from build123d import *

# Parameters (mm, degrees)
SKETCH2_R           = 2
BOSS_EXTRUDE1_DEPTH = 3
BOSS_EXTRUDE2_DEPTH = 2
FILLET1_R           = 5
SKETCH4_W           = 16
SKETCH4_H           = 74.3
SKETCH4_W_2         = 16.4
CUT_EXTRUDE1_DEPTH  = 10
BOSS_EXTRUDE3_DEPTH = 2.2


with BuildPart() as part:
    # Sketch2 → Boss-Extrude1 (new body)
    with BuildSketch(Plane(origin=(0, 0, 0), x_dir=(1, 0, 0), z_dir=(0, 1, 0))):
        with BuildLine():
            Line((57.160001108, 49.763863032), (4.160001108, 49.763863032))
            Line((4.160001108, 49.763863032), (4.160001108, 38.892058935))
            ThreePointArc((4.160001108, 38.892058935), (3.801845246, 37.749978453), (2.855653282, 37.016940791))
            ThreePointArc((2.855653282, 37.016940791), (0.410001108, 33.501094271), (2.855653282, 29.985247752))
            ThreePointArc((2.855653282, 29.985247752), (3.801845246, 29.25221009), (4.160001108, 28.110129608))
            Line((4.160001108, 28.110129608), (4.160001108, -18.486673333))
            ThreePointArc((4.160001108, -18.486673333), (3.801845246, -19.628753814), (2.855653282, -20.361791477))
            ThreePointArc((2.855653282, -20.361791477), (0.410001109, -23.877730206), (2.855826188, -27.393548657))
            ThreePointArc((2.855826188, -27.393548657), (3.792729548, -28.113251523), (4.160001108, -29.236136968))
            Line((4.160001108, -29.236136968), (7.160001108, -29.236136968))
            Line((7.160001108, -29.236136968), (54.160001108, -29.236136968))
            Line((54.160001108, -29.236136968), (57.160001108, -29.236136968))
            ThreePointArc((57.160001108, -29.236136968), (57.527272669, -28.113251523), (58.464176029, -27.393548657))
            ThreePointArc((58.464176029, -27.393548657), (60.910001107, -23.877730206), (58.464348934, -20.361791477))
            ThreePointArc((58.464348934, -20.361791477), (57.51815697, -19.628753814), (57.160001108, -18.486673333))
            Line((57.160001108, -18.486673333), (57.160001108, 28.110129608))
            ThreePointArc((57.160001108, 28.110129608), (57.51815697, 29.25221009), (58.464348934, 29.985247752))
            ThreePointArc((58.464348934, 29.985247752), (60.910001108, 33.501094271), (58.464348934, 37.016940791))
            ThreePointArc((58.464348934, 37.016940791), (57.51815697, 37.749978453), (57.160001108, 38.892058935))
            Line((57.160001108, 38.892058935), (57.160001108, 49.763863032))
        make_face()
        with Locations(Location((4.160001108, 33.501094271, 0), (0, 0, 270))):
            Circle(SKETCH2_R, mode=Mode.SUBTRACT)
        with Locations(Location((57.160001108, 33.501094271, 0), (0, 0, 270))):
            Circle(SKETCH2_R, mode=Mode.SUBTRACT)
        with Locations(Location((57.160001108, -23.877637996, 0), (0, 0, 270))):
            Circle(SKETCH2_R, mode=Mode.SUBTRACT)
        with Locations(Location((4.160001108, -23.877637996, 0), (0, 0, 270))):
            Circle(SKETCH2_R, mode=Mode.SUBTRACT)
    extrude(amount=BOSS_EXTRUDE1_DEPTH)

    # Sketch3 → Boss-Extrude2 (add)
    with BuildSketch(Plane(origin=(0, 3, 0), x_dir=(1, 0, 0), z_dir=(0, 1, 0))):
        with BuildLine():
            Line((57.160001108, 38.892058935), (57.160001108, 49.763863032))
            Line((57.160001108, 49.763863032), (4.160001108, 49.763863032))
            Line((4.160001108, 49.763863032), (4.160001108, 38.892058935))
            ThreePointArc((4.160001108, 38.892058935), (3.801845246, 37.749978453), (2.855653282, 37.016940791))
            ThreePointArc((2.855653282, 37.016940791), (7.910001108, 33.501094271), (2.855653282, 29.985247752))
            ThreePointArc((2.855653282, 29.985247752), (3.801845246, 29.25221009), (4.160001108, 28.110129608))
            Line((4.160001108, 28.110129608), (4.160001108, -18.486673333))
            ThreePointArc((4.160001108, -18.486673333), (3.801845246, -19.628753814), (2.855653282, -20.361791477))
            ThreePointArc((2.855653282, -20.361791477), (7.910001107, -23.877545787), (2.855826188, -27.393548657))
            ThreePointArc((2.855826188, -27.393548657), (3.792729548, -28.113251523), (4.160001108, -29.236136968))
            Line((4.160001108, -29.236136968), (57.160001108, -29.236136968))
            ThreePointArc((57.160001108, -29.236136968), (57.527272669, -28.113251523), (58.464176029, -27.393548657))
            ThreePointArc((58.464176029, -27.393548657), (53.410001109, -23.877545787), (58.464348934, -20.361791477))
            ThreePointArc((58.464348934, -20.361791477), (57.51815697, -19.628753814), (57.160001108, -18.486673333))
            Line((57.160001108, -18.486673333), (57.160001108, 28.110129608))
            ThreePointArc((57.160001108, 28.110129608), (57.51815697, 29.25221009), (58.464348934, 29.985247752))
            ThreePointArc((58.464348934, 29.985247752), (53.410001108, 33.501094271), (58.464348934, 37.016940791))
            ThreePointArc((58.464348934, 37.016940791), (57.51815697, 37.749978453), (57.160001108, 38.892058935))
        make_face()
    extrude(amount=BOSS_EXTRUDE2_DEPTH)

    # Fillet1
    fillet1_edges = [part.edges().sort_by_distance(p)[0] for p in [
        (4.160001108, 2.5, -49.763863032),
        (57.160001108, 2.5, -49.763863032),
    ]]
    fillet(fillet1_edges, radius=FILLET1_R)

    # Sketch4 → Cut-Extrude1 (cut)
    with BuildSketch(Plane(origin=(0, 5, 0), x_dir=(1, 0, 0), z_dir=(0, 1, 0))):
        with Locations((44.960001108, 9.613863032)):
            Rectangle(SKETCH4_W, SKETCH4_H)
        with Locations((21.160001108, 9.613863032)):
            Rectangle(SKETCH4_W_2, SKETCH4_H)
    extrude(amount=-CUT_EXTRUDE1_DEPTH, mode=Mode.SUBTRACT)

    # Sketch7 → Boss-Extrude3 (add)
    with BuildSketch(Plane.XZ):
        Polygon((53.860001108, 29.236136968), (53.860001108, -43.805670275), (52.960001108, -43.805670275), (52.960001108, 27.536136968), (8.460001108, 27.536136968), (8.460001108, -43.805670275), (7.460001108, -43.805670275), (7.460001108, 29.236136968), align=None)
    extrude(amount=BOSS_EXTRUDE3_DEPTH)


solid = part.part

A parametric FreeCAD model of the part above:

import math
import FreeCAD as App
import Part
import Sketcher


def edges_at(feature, points):
    """Names of the edges that pass closest to the given points."""
    edges = feature.Shape.Edges
    near = lambda p: min(range(len(edges)), key=lambda i: edges[i].distToShape(Part.Vertex(*p))[0])
    return sorted({f"Edge{near(p) + 1}" for p in points})

doc = App.newDocument("Part")
body = doc.addObject("PartDesign::Body", "Body")

# Sketch on XZ plane
sketch1 = doc.addObject("Sketcher::SketchObject", "Sketch")
body.addObject(sketch1)
sketch1.AttachmentSupport = (doc.XZ_Plane, [""])
sketch1.MapMode = "FlatFace"
sketch1.addGeometry([
    Part.LineSegment(App.Vector(57.2, -49.8, 0), App.Vector(4.2, -49.8, 0)),  # 0
    Part.LineSegment(App.Vector(4.2, -49.8, 0), App.Vector(4.2, -38.9, 0)),  # 1
    Part.ArcOfCircle(Part.Circle(App.Vector(2.2, -38.9, 0), App.Vector(0, 0, 1), 2), math.radians(0), math.radians(70)),  # 2
    Part.ArcOfCircle(Part.Circle(App.Vector(4.2, -33.5, 0), App.Vector(0, 0, 1), 3.8), math.radians(110), math.radians(250)),  # 3
    Part.ArcOfCircle(Part.Circle(App.Vector(2.2, -28.1, 0), App.Vector(0, 0, 1), 2), math.radians(-70), math.radians(0)),  # 4
    Part.LineSegment(App.Vector(4.2, -28.1, 0), App.Vector(4.2, 18.5, 0)),  # 5
    Part.ArcOfCircle(Part.Circle(App.Vector(2.2, 18.5, 0), App.Vector(0, 0, 1), 2), math.radians(0), math.radians(70)),  # 6
    Part.ArcOfCircle(Part.Circle(App.Vector(4.2, 23.9, 0), App.Vector(0, 0, 1), 3.7), math.radians(110), math.radians(250)),  # 7
    Part.ArcOfCircle(Part.Circle(App.Vector(2.2, 29.3, 0), App.Vector(0, 0, 1), 2), math.radians(-70), math.radians(-1)),  # 8
    Part.LineSegment(App.Vector(4.2, 29.2, 0), App.Vector(57.2, 29.2, 0)),  # 9
    Part.ArcOfCircle(Part.Circle(App.Vector(59.2, 29.3, 0), App.Vector(0, 0, 1), 2), math.radians(-179), math.radians(-110)),  # 10
    Part.ArcOfCircle(Part.Circle(App.Vector(57.2, 23.9, 0), App.Vector(0, 0, 1), 3.8), math.radians(-70), math.radians(70)),  # 11
    Part.ArcOfCircle(Part.Circle(App.Vector(59.2, 18.5, 0), App.Vector(0, 0, 1), 2), math.radians(110), math.radians(180)),  # 12
    Part.LineSegment(App.Vector(57.2, 18.5, 0), App.Vector(57.2, -28.1, 0)),  # 13
    Part.ArcOfCircle(Part.Circle(App.Vector(59.2, -28.1, 0), App.Vector(0, 0, 1), 2), math.radians(180), math.radians(250)),  # 14
    Part.ArcOfCircle(Part.Circle(App.Vector(57.2, -33.5, 0), App.Vector(0, 0, 1), 3.8), math.radians(-70), math.radians(70)),  # 15
    Part.ArcOfCircle(Part.Circle(App.Vector(59.2, -38.9, 0), App.Vector(0, 0, 1), 2), math.radians(110), math.radians(180)),  # 16
    Part.LineSegment(App.Vector(57.2, -38.9, 0), App.Vector(57.2, -49.8, 0)),  # 17
    Part.Circle(App.Vector(4.2, 23.9, 0), App.Vector(0, 0, 1), 2),  # 18
    Part.Circle(App.Vector(57.2, 23.9, 0), App.Vector(0, 0, 1), 2),  # 19
    Part.Circle(App.Vector(4.2, -33.5, 0), App.Vector(0, 0, 1), 2),  # 20
    Part.Circle(App.Vector(57.2, -33.5, 0), App.Vector(0, 0, 1), 2),  # 21
], False)
sketch1.addConstraint([
    Sketcher.Constraint("Coincident", 0, 2, 1, 1),
    Sketcher.Constraint("Tangent", 1, 2, 2, 1),
    Sketcher.Constraint("Tangent", 2, 2, 3, 2),
    Sketcher.Constraint("Tangent", 3, 1, 4, 1),
    Sketcher.Constraint("Tangent", 4, 2, 5, 1),
    Sketcher.Constraint("Tangent", 5, 2, 6, 1),
    Sketcher.Constraint("Tangent", 6, 2, 7, 2),
    Sketcher.Constraint("Tangent", 7, 1, 8, 1),
    Sketcher.Constraint("Coincident", 8, 2, 9, 1),
    Sketcher.Constraint("Coincident", 9, 2, 10, 1),
    Sketcher.Constraint("Tangent", 10, 2, 11, 2),
    Sketcher.Constraint("Tangent", 11, 1, 12, 1),
    Sketcher.Constraint("Tangent", 12, 2, 13, 1),
    Sketcher.Constraint("Tangent", 13, 2, 14, 1),
    Sketcher.Constraint("Tangent", 14, 2, 15, 2),
    Sketcher.Constraint("Tangent", 15, 1, 16, 1),
    Sketcher.Constraint("Tangent", 16, 2, 17, 1),
    Sketcher.Constraint("Coincident", 17, 2, 0, 1),
    Sketcher.Constraint("Horizontal", 0),
    Sketcher.Constraint("Vertical", 1),
    Sketcher.Constraint("Vertical", 5),
    Sketcher.Constraint("Horizontal", 9),
    Sketcher.Constraint("Vertical", 13),
    Sketcher.Constraint("Vertical", 17),
    Sketcher.Constraint("Coincident", 18, 3, 7, 3),
    Sketcher.Constraint("Coincident", 19, 3, 11, 3),
    Sketcher.Constraint("Coincident", 20, 3, 3, 3),
    Sketcher.Constraint("Coincident", 21, 3, 15, 3),
    Sketcher.Constraint("Equal", 2, 4),
    Sketcher.Constraint("Equal", 4, 6),
    Sketcher.Constraint("Equal", 3, 7),
    Sketcher.Constraint("Equal", 6, 8),
    Sketcher.Constraint("Equal", 8, 10),
    Sketcher.Constraint("Equal", 7, 11),
    Sketcher.Constraint("Equal", 10, 12),
    Sketcher.Constraint("Equal", 12, 14),
    Sketcher.Constraint("Equal", 11, 15),
    Sketcher.Constraint("Equal", 14, 16),
    Sketcher.Constraint("Equal", 16, 18),
    Sketcher.Constraint("Equal", 18, 19),
    Sketcher.Constraint("Equal", 19, 20),
    Sketcher.Constraint("Equal", 20, 21),
    Sketcher.Constraint("Horizontal", 8, 3, 10, 3),
    Sketcher.Constraint("Horizontal", 7, 3, 11, 3),
    Sketcher.Constraint("Horizontal", 6, 3, 12, 3),
    Sketcher.Constraint("Horizontal", 4, 3, 14, 3),
    Sketcher.Constraint("Horizontal", 3, 3, 15, 3),
    Sketcher.Constraint("Horizontal", 2, 3, 16, 3),
    Sketcher.Constraint("Vertical", 2, 3, 4, 3),
    Sketcher.Constraint("Vertical", 3, 3, 7, 3),
    Sketcher.Constraint("Vertical", 20, 3, 0, 2),
    Sketcher.Constraint("Vertical", 5, 2, 8, 2),
    Sketcher.Constraint("Diameter", 18, 4.0),
    Sketcher.Constraint("DistanceX", 0, 2, 0, 1, 53.0),
    Sketcher.Constraint("Radius", 3, 3.75),
    Sketcher.Constraint("DistanceX", -1, 1, 2, 3, 2.160001),
    Sketcher.Constraint("DistanceY", -1, 1, 8, 3, 29.268701),
    Sketcher.Constraint("DistanceY", 7, 3, 8, 2, 5.358499),
    Sketcher.Constraint("DistanceY", 1, 1, 1, 2, 10.871804),
    Sketcher.Constraint("DistanceY", 5, 1, 5, 2, 46.596803),
])
pad1 = doc.addObject("PartDesign::Pad", "Pad")
body.addObject(pad1)
pad1.Profile = sketch1
pad1.Length = 3
pad1.Reversed = True

# Sketch on XZ plane
sketch2 = doc.addObject("Sketcher::SketchObject", "Sketch001")
body.addObject(sketch2)
sketch2.AttachmentSupport = (doc.XZ_Plane, [""])
sketch2.MapMode = "FlatFace"
sketch2.AttachmentOffset = App.Placement(App.Vector(0, 0, -3), App.Rotation())
sketch2.addGeometry([
    Part.LineSegment(App.Vector(57.2, -38.9, 0), App.Vector(57.2, -49.8, 0)),  # 0
    Part.LineSegment(App.Vector(57.2, -49.8, 0), App.Vector(4.2, -49.8, 0)),  # 1
    Part.LineSegment(App.Vector(4.2, -49.8, 0), App.Vector(4.2, -38.9, 0)),  # 2
    Part.ArcOfCircle(Part.Circle(App.Vector(2.2, -38.9, 0), App.Vector(0, 0, 1), 2), math.radians(0), math.radians(70)),  # 3
    Part.ArcOfCircle(Part.Circle(App.Vector(4.2, -33.5, 0), App.Vector(0, 0, 1), 3.8), math.radians(-110), math.radians(110)),  # 4
    Part.ArcOfCircle(Part.Circle(App.Vector(2.2, -28.1, 0), App.Vector(0, 0, 1), 2), math.radians(-70), math.radians(0)),  # 5
    Part.LineSegment(App.Vector(4.2, -28.1, 0), App.Vector(4.2, 18.5, 0)),  # 6
    Part.ArcOfCircle(Part.Circle(App.Vector(2.2, 18.5, 0), App.Vector(0, 0, 1), 2), math.radians(0), math.radians(70)),  # 7
    Part.ArcOfCircle(Part.Circle(App.Vector(4.2, 23.9, 0), App.Vector(0, 0, 1), 3.8), math.radians(-110), math.radians(110)),  # 8
    Part.ArcOfCircle(Part.Circle(App.Vector(2.2, 29.3, 0), App.Vector(0, 0, 1), 2), math.radians(-70), math.radians(-1)),  # 9
    Part.LineSegment(App.Vector(4.2, 29.2, 0), App.Vector(57.2, 29.2, 0)),  # 10
    Part.ArcOfCircle(Part.Circle(App.Vector(59.2, 29.3, 0), App.Vector(0, 0, 1), 2), math.radians(-179), math.radians(-110)),  # 11
    Part.ArcOfCircle(Part.Circle(App.Vector(57.2, 23.9, 0), App.Vector(0, 0, 1), 3.8), math.radians(70), math.radians(290)),  # 12
    Part.ArcOfCircle(Part.Circle(App.Vector(59.2, 18.5, 0), App.Vector(0, 0, 1), 2), math.radians(110), math.radians(180)),  # 13
    Part.LineSegment(App.Vector(57.2, 18.5, 0), App.Vector(57.2, -28.1, 0)),  # 14
    Part.ArcOfCircle(Part.Circle(App.Vector(59.2, -28.1, 0), App.Vector(0, 0, 1), 2), math.radians(180), math.radians(250)),  # 15
    Part.ArcOfCircle(Part.Circle(App.Vector(57.2, -33.5, 0), App.Vector(0, 0, 1), 3.8), math.radians(70), math.radians(290)),  # 16
    Part.ArcOfCircle(Part.Circle(App.Vector(59.2, -38.9, 0), App.Vector(0, 0, 1), 2), math.radians(110), math.radians(180)),  # 17
], False)
sketch2.addConstraint([
    Sketcher.Constraint("Coincident", 0, 2, 1, 1),
    Sketcher.Constraint("Coincident", 1, 2, 2, 1),
    Sketcher.Constraint("Tangent", 2, 2, 3, 1),
    Sketcher.Constraint("Tangent", 3, 2, 4, 1),
    Sketcher.Constraint("Tangent", 4, 2, 5, 1),
    Sketcher.Constraint("Tangent", 5, 2, 6, 1),
    Sketcher.Constraint("Tangent", 6, 2, 7, 1),
    Sketcher.Constraint("Tangent", 7, 2, 8, 1),
    Sketcher.Constraint("Tangent", 8, 2, 9, 1),
    Sketcher.Constraint("Coincident", 9, 2, 10, 1),
    Sketcher.Constraint("Coincident", 10, 2, 11, 1),
    Sketcher.Constraint("Tangent", 11, 2, 12, 1),
    Sketcher.Constraint("Tangent", 12, 2, 13, 1),
    Sketcher.Constraint("Tangent", 13, 2, 14, 1),
    Sketcher.Constraint("Tangent", 14, 2, 15, 1),
    Sketcher.Constraint("Tangent", 15, 2, 16, 1),
    Sketcher.Constraint("Tangent", 16, 2, 17, 1),
    Sketcher.Constraint("Tangent", 17, 2, 0, 1),
    Sketcher.Constraint("Vertical", 0),
    Sketcher.Constraint("Horizontal", 1),
    Sketcher.Constraint("Vertical", 2),
    Sketcher.Constraint("Vertical", 6),
    Sketcher.Constraint("Horizontal", 10),
    Sketcher.Constraint("Vertical", 14),
    Sketcher.Constraint("Equal", 3, 5),
    Sketcher.Constraint("Equal", 5, 7),
    Sketcher.Constraint("Equal", 4, 8),
    Sketcher.Constraint("Equal", 7, 9),
    Sketcher.Constraint("Equal", 9, 11),
    Sketcher.Constraint("Equal", 8, 12),
    Sketcher.Constraint("Equal", 11, 13),
    Sketcher.Constraint("Equal", 13, 15),
    Sketcher.Constraint("Equal", 12, 16),
    Sketcher.Constraint("Equal", 15, 17),
    Sketcher.Constraint("Horizontal", 9, 3, 11, 3),
    Sketcher.Constraint("Horizontal", 8, 3, 12, 3),
    Sketcher.Constraint("Horizontal", 7, 3, 13, 3),
    Sketcher.Constraint("Horizontal", 5, 3, 15, 3),
    Sketcher.Constraint("Horizontal", 4, 3, 16, 3),
    Sketcher.Constraint("Horizontal", 3, 3, 17, 3),
    Sketcher.Constraint("Vertical", 3, 3, 5, 3),
    Sketcher.Constraint("Vertical", 4, 3, 8, 3),
    Sketcher.Constraint("Vertical", 16, 3, 0, 2),
    Sketcher.Constraint("Vertical", 6, 2, 9, 2),
    Sketcher.Constraint("Radius", 3, 2.0),
    Sketcher.Constraint("DistanceX", 1, 2, 1, 1, 53.0),
    Sketcher.Constraint("Radius", 4, 3.75),
    Sketcher.Constraint("DistanceX", -1, 1, 3, 3, 2.160001),
    Sketcher.Constraint("DistanceY", -1, 1, 9, 3, 29.268701),
    Sketcher.Constraint("DistanceY", 8, 3, 9, 2, 5.358499),
    Sketcher.Constraint("DistanceY", 0, 2, 0, 1, 10.871804),
    Sketcher.Constraint("DistanceY", 6, 1, 6, 2, 46.596803),
])
pad2 = doc.addObject("PartDesign::Pad", "Pad001")
body.addObject(pad2)
pad2.Profile = sketch2
pad2.Length = 2
pad2.Reversed = True
doc.recompute()

fillet = doc.addObject("PartDesign::Fillet", "Fillet")
body.addObject(fillet)
fillet.Base = (pad2, edges_at(pad2, [(4.16, 2.5, -49.764), (57.16, 2.5, -49.764)]))
fillet.Radius = 5

# Sketch on XZ plane
sketch3 = doc.addObject("Sketcher::SketchObject", "Sketch002")
body.addObject(sketch3)
sketch3.AttachmentSupport = (doc.XZ_Plane, [""])
sketch3.MapMode = "FlatFace"
sketch3.AttachmentOffset = App.Placement(App.Vector(0, 0, -5), App.Rotation())
sketch3.addGeometry([
    Part.LineSegment(App.Vector(37, -47, 0), App.Vector(37, 28, 0)),  # 0
    Part.LineSegment(App.Vector(37, 28, 0), App.Vector(53, 28, 0)),  # 1
    Part.LineSegment(App.Vector(53, 28, 0), App.Vector(53, -47, 0)),  # 2
    Part.LineSegment(App.Vector(53, -47, 0), App.Vector(37, -47, 0)),  # 3
    Part.LineSegment(App.Vector(13, -47, 0), App.Vector(13, 28, 0)),  # 4
    Part.LineSegment(App.Vector(13, 28, 0), App.Vector(29, 28, 0)),  # 5
    Part.LineSegment(App.Vector(29, 28, 0), App.Vector(29, -47, 0)),  # 6
    Part.LineSegment(App.Vector(29, -47, 0), App.Vector(13, -47, 0)),  # 7
], False)
sketch3.addConstraint([
    Sketcher.Constraint("Coincident", 0, 2, 1, 1),
    Sketcher.Constraint("Coincident", 1, 2, 2, 1),
    Sketcher.Constraint("Coincident", 2, 2, 3, 1),
    Sketcher.Constraint("Coincident", 3, 2, 0, 1),
    Sketcher.Constraint("Coincident", 4, 2, 5, 1),
    Sketcher.Constraint("Coincident", 5, 2, 6, 1),
    Sketcher.Constraint("Coincident", 6, 2, 7, 1),
    Sketcher.Constraint("Coincident", 7, 2, 4, 1),
    Sketcher.Constraint("Vertical", 0),
    Sketcher.Constraint("Horizontal", 1),
    Sketcher.Constraint("Vertical", 2),
    Sketcher.Constraint("Horizontal", 3),
    Sketcher.Constraint("Vertical", 4),
    Sketcher.Constraint("Horizontal", 5),
    Sketcher.Constraint("Vertical", 6),
    Sketcher.Constraint("Horizontal", 7),
    Sketcher.Constraint("Horizontal", 1, 2, 4, 2),
    Sketcher.Constraint("Horizontal", 3, 2, 6, 2),
    Sketcher.Constraint("DistanceX", 1, 1, 1, 2, 16.0),
    Sketcher.Constraint("DistanceX", 5, 1, 5, 2, 16.4),
    Sketcher.Constraint("DistanceY", 0, 1, 0, 2, 74.3),
    Sketcher.Constraint("DistanceX", 4, 2, 0, 2, 24.0),
    Sketcher.Constraint("DistanceX", -1, 1, 0, 2, 36.960001),
    Sketcher.Constraint("DistanceY", -1, 1, 0, 2, 27.536137),
])
pocket1 = doc.addObject("PartDesign::Pocket", "Pocket")
body.addObject(pocket1)
pocket1.Profile = sketch3
pocket1.Length = 10
pocket1.Reversed = True

# Sketch on XZ plane
sketch4 = doc.addObject("Sketcher::SketchObject", "Sketch003")
body.addObject(sketch4)
sketch4.AttachmentSupport = (doc.XZ_Plane, [""])
sketch4.MapMode = "FlatFace"
sketch4.addGeometry([
    Part.LineSegment(App.Vector(53.9, -43.8, 0), App.Vector(53.9, 29.2, 0)),  # 0
    Part.LineSegment(App.Vector(53.9, 29.2, 0), App.Vector(7.5, 29.2, 0)),  # 1
    Part.LineSegment(App.Vector(7.5, 29.2, 0), App.Vector(7.5, -43.8, 0)),  # 2
    Part.LineSegment(App.Vector(7.5, -43.8, 0), App.Vector(8.5, -43.8, 0)),  # 3
    Part.LineSegment(App.Vector(8.5, -43.8, 0), App.Vector(8.5, 27.5, 0)),  # 4
    Part.LineSegment(App.Vector(8.5, 27.5, 0), App.Vector(53, 27.5, 0)),  # 5
    Part.LineSegment(App.Vector(53, 27.5, 0), App.Vector(53, -43.8, 0)),  # 6
    Part.LineSegment(App.Vector(53, -43.8, 0), App.Vector(53.9, -43.8, 0)),  # 7
], False)
sketch4.addConstraint([
    Sketcher.Constraint("Coincident", 0, 2, 1, 1),
    Sketcher.Constraint("Coincident", 1, 2, 2, 1),
    Sketcher.Constraint("Coincident", 2, 2, 3, 1),
    Sketcher.Constraint("Coincident", 3, 2, 4, 1),
    Sketcher.Constraint("Coincident", 4, 2, 5, 1),
    Sketcher.Constraint("Coincident", 5, 2, 6, 1),
    Sketcher.Constraint("Coincident", 6, 2, 7, 1),
    Sketcher.Constraint("Coincident", 7, 2, 0, 1),
    Sketcher.Constraint("Vertical", 0),
    Sketcher.Constraint("Horizontal", 1),
    Sketcher.Constraint("Vertical", 2),
    Sketcher.Constraint("Horizontal", 3),
    Sketcher.Constraint("Vertical", 4),
    Sketcher.Constraint("Horizontal", 5),
    Sketcher.Constraint("Vertical", 6),
    Sketcher.Constraint("Horizontal", 7),
    Sketcher.Constraint("Horizontal", 3, 2, 6, 2),
    Sketcher.Constraint("DistanceX", 3, 1, 3, 2, 1.0),
    Sketcher.Constraint("DistanceX", 1, 2, 1, 1, 46.4),
    Sketcher.Constraint("DistanceX", 5, 1, 5, 2, 44.5),
    Sketcher.Constraint("DistanceY", 4, 2, 1, 2, 1.7),
    Sketcher.Constraint("DistanceX", -1, 1, 0, 2, 53.860001),
    Sketcher.Constraint("DistanceY", 0, 1, 0, 2, 73.041807),
    Sketcher.Constraint("DistanceY", 2, 2, -1, 1, 43.80567),
])
pad3 = doc.addObject("PartDesign::Pad", "Pad002")
body.addObject(pad3)
pad3.Profile = sketch4
pad3.Length = 2.2

doc.recompute()
